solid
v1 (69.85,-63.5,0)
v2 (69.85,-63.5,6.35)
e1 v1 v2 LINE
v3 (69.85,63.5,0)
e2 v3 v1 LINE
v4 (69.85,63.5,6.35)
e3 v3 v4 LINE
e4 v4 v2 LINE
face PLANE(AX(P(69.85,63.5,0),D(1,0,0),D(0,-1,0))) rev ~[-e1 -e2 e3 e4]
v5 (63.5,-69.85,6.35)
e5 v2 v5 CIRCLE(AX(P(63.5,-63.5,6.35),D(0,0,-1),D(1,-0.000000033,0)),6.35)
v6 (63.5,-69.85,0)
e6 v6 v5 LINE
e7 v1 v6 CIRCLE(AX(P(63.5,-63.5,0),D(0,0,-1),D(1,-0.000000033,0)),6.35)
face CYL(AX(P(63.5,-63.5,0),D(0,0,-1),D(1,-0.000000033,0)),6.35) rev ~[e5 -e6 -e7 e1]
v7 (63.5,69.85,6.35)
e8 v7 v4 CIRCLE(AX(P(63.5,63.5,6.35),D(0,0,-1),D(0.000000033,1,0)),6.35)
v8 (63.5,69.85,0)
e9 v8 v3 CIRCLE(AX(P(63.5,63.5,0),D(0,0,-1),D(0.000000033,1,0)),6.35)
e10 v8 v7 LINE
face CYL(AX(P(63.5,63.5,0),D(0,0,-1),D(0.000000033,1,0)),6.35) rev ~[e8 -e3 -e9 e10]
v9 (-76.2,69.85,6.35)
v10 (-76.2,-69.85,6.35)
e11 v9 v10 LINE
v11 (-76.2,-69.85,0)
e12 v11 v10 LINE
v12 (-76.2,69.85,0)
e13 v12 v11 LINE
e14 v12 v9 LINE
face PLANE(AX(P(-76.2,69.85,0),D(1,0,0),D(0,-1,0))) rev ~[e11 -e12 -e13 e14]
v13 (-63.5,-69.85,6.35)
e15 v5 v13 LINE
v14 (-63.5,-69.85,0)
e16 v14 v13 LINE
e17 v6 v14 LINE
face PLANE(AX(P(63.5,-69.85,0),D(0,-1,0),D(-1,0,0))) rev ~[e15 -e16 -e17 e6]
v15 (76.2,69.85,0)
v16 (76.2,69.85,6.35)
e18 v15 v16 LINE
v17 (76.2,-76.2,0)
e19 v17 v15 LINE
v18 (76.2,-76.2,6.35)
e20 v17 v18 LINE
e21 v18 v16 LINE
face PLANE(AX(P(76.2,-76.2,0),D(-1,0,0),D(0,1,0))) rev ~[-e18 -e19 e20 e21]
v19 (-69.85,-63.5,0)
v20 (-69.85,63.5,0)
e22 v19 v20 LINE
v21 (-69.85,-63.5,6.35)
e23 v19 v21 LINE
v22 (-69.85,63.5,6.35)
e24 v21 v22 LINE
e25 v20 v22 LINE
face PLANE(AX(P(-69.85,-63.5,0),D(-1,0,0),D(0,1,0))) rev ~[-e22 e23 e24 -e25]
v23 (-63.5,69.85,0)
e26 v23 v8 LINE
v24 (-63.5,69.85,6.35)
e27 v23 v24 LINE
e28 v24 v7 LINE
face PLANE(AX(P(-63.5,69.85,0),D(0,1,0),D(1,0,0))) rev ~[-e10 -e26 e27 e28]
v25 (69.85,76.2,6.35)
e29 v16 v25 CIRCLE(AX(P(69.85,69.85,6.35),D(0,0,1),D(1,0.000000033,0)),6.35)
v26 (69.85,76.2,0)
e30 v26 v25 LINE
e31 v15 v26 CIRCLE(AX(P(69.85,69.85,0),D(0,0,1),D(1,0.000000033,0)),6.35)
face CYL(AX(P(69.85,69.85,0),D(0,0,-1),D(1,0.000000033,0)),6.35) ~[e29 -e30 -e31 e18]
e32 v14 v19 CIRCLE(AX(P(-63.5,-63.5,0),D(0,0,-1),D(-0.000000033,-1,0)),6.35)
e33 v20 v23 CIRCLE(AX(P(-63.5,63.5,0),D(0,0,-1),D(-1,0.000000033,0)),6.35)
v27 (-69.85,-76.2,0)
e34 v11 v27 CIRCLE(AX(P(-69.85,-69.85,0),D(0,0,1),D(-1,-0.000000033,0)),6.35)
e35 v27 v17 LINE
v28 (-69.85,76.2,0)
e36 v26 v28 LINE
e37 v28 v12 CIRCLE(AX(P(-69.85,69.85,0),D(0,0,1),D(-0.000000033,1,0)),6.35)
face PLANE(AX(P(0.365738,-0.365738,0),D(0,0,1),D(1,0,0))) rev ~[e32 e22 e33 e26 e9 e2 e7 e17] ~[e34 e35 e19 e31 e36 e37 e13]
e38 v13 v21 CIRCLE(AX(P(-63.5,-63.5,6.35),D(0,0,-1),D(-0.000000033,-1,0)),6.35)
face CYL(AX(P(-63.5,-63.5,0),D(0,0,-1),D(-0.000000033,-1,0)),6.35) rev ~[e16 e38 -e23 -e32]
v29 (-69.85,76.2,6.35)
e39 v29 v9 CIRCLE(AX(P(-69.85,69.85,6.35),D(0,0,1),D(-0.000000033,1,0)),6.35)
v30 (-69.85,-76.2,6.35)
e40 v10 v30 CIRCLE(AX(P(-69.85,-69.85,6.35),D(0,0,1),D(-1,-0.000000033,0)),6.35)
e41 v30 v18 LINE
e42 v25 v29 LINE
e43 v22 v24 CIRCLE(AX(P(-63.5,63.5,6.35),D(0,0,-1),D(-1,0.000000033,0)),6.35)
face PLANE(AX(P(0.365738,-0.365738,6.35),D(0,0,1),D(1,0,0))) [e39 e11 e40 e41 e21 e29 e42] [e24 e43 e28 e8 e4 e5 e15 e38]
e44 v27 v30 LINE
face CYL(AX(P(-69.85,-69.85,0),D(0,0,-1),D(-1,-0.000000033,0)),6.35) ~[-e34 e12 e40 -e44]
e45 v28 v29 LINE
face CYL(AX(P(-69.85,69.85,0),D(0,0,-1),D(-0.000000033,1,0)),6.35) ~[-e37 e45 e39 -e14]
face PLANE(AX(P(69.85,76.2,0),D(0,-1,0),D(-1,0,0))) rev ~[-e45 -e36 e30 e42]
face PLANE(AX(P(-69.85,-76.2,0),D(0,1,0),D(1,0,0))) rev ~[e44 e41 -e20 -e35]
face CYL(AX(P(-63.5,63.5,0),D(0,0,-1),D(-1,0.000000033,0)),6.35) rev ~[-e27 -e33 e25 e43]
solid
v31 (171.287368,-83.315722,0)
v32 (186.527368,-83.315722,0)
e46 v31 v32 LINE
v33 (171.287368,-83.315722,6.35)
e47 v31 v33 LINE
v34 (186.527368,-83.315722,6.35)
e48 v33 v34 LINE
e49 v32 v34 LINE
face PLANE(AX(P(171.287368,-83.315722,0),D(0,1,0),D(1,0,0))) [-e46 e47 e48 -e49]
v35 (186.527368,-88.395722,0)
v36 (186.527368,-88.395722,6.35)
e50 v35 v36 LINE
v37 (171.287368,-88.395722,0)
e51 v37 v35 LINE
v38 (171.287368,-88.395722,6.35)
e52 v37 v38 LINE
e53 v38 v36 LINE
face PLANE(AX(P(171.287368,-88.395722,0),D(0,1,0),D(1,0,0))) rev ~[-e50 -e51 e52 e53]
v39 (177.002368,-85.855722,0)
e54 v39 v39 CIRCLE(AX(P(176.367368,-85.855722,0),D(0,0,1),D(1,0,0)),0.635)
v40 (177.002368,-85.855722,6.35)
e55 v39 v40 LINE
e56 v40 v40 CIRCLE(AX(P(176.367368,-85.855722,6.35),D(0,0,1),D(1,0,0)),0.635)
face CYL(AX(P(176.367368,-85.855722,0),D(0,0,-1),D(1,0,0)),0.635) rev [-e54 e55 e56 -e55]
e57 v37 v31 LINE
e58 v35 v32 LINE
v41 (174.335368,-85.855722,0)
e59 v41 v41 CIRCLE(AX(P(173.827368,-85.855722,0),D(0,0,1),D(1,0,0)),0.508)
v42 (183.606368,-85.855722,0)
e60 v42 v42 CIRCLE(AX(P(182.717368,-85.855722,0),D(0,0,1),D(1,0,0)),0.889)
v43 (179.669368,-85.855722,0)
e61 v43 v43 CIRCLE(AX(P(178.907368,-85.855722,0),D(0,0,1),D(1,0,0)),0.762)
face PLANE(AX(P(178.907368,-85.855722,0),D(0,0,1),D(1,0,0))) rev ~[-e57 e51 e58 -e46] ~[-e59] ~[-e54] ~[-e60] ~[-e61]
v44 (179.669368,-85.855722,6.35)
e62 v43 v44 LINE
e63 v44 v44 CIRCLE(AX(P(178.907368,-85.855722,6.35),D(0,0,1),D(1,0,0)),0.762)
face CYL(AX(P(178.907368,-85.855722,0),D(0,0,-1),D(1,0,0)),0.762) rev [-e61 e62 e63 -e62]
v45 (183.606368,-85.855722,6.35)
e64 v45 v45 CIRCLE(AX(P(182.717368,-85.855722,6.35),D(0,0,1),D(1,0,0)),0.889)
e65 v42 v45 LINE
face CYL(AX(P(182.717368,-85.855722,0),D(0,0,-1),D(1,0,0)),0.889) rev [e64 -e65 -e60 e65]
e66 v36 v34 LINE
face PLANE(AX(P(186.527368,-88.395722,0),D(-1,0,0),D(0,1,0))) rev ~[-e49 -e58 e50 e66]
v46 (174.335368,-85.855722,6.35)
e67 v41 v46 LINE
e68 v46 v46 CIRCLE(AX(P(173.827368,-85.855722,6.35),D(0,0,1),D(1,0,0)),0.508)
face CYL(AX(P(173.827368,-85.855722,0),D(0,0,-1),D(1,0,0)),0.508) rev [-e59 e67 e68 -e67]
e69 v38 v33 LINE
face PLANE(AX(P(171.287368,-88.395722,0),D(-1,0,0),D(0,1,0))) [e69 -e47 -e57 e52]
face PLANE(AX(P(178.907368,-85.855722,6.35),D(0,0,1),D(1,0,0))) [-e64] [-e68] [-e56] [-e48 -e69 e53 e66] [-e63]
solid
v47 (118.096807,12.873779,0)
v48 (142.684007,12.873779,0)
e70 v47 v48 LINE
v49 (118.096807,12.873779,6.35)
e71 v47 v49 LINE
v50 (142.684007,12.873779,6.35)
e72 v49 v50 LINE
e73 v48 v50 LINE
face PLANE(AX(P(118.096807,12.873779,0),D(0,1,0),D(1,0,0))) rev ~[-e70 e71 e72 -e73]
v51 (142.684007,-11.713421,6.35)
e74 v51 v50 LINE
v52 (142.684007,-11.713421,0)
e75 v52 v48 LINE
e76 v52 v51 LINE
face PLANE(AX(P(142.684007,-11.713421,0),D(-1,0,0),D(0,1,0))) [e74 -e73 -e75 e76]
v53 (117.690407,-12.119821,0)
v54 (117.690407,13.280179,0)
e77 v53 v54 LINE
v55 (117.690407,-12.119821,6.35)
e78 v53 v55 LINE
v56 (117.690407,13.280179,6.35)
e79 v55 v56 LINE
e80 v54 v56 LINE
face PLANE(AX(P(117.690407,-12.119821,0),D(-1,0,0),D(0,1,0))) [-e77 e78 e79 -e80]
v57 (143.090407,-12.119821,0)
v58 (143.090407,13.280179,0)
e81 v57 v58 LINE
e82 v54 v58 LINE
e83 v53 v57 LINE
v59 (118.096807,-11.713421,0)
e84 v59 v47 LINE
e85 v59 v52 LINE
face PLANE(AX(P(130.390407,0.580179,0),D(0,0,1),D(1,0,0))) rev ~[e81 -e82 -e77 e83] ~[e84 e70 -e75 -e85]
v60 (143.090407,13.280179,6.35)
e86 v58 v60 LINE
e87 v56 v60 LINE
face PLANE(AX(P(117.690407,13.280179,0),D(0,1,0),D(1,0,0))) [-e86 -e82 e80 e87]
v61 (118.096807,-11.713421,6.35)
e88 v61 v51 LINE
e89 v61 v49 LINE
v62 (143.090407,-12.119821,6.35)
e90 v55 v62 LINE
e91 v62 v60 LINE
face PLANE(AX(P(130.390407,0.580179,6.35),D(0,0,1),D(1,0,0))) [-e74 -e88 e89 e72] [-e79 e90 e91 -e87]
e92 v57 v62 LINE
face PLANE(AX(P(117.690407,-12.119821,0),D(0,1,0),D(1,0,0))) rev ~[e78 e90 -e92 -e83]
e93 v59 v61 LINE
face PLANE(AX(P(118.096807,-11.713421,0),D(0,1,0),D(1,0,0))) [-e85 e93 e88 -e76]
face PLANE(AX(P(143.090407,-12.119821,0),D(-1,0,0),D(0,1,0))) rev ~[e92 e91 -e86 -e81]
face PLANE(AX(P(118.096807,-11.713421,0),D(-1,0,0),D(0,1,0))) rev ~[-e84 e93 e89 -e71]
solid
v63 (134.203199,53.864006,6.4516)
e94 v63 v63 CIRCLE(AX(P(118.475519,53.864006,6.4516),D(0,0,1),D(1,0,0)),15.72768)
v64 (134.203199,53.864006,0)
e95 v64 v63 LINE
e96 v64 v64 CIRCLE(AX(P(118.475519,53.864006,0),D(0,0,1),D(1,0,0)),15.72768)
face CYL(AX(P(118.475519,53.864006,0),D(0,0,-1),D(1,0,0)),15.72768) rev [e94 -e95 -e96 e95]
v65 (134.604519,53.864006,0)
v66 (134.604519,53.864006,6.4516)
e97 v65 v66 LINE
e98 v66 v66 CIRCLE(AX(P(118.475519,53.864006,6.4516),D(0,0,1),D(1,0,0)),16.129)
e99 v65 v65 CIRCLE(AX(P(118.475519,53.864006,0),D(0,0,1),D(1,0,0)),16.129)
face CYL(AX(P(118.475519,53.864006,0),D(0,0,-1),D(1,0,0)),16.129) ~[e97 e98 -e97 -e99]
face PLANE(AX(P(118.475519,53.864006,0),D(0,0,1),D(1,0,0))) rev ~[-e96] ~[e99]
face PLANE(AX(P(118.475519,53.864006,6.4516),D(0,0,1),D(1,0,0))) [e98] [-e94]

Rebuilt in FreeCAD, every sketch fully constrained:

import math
import FreeCAD as App
import Part
import Sketcher
from FreeCAD import Vector
Q = App.Units.Quantity

doc = App.newDocument("Part")
body = doc.addObject("PartDesign::Body", "Body")

sketch1 = doc.addObject("Sketcher::SketchObject", "Sketch")
body.addObject(sketch1)
sketch1.AttachmentSupport = (doc.XY_Plane, [""])
sketch1.MapMode = "FlatFace"
sketch1.addGeometry([
    Part.LineSegment(Vector(70, 76, 0), Vector(-70, 76, 0)),
    Part.ArcOfCircle(Part.Circle(Vector(-70, 70, 0), Vector(0, 0, 1), 6), math.radians(90), math.radians(180)),
    Part.LineSegment(Vector(-76, 70, 0), Vector(-76, -70, 0)),
    Part.ArcOfCircle(Part.Circle(Vector(-70, -70, 0), Vector(0, 0, 1), 6), math.radians(-180), math.radians(-90)),
    Part.LineSegment(Vector(-70, -76, 0), Vector(76, -76, 0)),
    Part.LineSegment(Vector(76, -76, 0), Vector(76, 70, 0)),
    Part.ArcOfCircle(Part.Circle(Vector(70, 70, 0), Vector(0, 0, 1), 6), math.radians(0), math.radians(90)),
    Part.LineSegment(Vector(-70, -64, 0), Vector(-70, 64, 0)),
    Part.ArcOfCircle(Part.Circle(Vector(-63, 63, 0), Vector(0, 0, 1), 6), math.radians(90), math.radians(180)),
    Part.LineSegment(Vector(-64, 70, 0), Vector(64, 70, 0)),
    Part.ArcOfCircle(Part.Circle(Vector(63, 63, 0), Vector(0, 0, 1), 6), math.radians(0), math.radians(90)),
    Part.LineSegment(Vector(70, 64, 0), Vector(70, -64, 0)),
    Part.ArcOfCircle(Part.Circle(Vector(63, -63, 0), Vector(0, 0, 1), 6), math.radians(-90), math.radians(0)),
    Part.LineSegment(Vector(64, -70, 0), Vector(-64, -70, 0)),
    Part.ArcOfCircle(Part.Circle(Vector(-63, -63, 0), Vector(0, 0, 1), 6), math.radians(-180), math.radians(-90)),
], False)
sketch1.addConstraint([
    Sketcher.Constraint("Tangent", 0, 2, 1, 1),
    Sketcher.Constraint("Tangent", 1, 2, 2, 1),
    Sketcher.Constraint("Tangent", 2, 2, 3, 1),
    Sketcher.Constraint("Tangent", 3, 2, 4, 1),
    Sketcher.Constraint("Coincident", 4, 2, 5, 1),
    Sketcher.Constraint("Tangent", 5, 2, 6, 1),
    Sketcher.Constraint("Tangent", 6, 2, 0, 1),
    Sketcher.Constraint("Tangent", 7, 2, 8, 2),
    Sketcher.Constraint("Tangent", 8, 1, 9, 1),
    Sketcher.Constraint("Tangent", 9, 2, 10, 2),
    Sketcher.Constraint("Tangent", 10, 1, 11, 1),
    Sketcher.Constraint("Tangent", 11, 2, 12, 2),
    Sketcher.Constraint("Tangent", 12, 1, 13, 1),
    Sketcher.Constraint("Tangent", 13, 2, 14, 2),
    Sketcher.Constraint("Tangent", 14, 1, 7, 1),
    Sketcher.Constraint("Horizontal", 0),
    Sketcher.Constraint("Vertical", 2),
    Sketcher.Constraint("Horizontal", 4),
    Sketcher.Constraint("Vertical", 5),
    Sketcher.Constraint("Vertical", 7),
    Sketcher.Constraint("Horizontal", 9),
    Sketcher.Constraint("Vertical", 11),
    Sketcher.Constraint("Horizontal", 13),
    Sketcher.Constraint("Equal", 1, 3),
    Sketcher.Constraint("Equal", 3, 6),
    Sketcher.Constraint("Equal", 6, 8),
    Sketcher.Constraint("Equal", 8, 10),
    Sketcher.Constraint("Equal", 10, 12),
    Sketcher.Constraint("Equal", 12, 14),
    Sketcher.Constraint("Symmetric", 3, 3, 6, 3, -1, 1),
    Sketcher.Constraint("Symmetric", 8, 3, 12, 3, -1, 1),
    Sketcher.Constraint("Horizontal", 5, 2, 8, 1),
    Sketcher.Constraint("Vertical", 3, 2, 7, 2),
    Sketcher.Constraint("Equal", 0, 2),
    Sketcher.Constraint("DistanceX", 9, 1, 9, 2, Q("5 in")),
    Sketcher.Constraint("Radius", 1, Q("0.25 in")),
])
pad1 = doc.addObject("PartDesign::Pad", "Pad")
body.addObject(pad1)
pad1.Profile = sketch1
pad1.Length = Q("0.25 in")
body2 = doc.addObject("PartDesign::Body", "Body001")

sketch2 = doc.addObject("Sketcher::SketchObject", "Sketch001")
body2.addObject(sketch2)
sketch2.AttachmentSupport = (doc.getObject("XY_Plane001"), [""])
sketch2.MapMode = "FlatFace"
sketch2.addGeometry([
    Part.LineSegment(Vector(118, 13, 0), Vector(118, -12, 0)),
    Part.LineSegment(Vector(118, -12, 0), Vector(143, -12, 0)),
    Part.LineSegment(Vector(143, -12, 0), Vector(143, 13, 0)),
    Part.LineSegment(Vector(143, 13, 0), Vector(118, 13, 0)),
    Part.LineSegment(Vector(143, -12, 0), Vector(118, -12, 0)),
    Part.LineSegment(Vector(118, -12, 0), Vector(118, 13, 0)),
    Part.LineSegment(Vector(118, 13, 0), Vector(143, 13, 0)),
    Part.LineSegment(Vector(143, 13, 0), Vector(143, -12, 0)),
], False)
sketch2.addConstraint([
    Sketcher.Constraint("Coincident", 0, 2, 1, 1),
    Sketcher.Constraint("Coincident", 1, 2, 2, 1),
    Sketcher.Constraint("Coincident", 2, 2, 3, 1),
    Sketcher.Constraint("Coincident", 3, 2, 0, 1),
    Sketcher.Constraint("Coincident", 4, 2, 5, 1),
    Sketcher.Constraint("Coincident", 5, 2, 6, 1),
    Sketcher.Constraint("Coincident", 6, 2, 7, 1),
    Sketcher.Constraint("Coincident", 7, 2, 4, 1),
    Sketcher.Constraint("Vertical", 0),
    Sketcher.Constraint("Horizontal", 1),
    Sketcher.Constraint("Vertical", 2),
    Sketcher.Constraint("Horizontal", 3),
    Sketcher.Constraint("Horizontal", 4),
    Sketcher.Constraint("Vertical", 5),
    Sketcher.Constraint("Horizontal", 6),
    Sketcher.Constraint("Vertical", 7),
    Sketcher.Constraint("Equal", 3, 0),
    Sketcher.Constraint("Equal", 6, 5),
    Sketcher.Constraint("DistanceX", 1, 1, 1, 2, Q("1 in")),
    Sketcher.Constraint("DistanceX", 4, 2, 4, 1, Q("0.968 in")),
    Sketcher.Constraint("DistanceX", 0, 2, 4, 2, Q("0.016 in")),
    Sketcher.Constraint("DistanceY", 0, 2, 4, 2, Q("0.016 in")),
    Sketcher.Constraint("DistanceY", 0, 2, -1, 1, Q("12.119821 mm")),
    Sketcher.Constraint("DistanceX", -1, 1, 0, 2, Q("117.690407 mm")),
])
pad2 = doc.addObject("PartDesign::Pad", "Pad001")
body2.addObject(pad2)
pad2.Profile = sketch2
pad2.Length = Q("0.25 in")
body3 = doc.addObject("PartDesign::Body", "Body002")

sketch3 = doc.addObject("Sketcher::SketchObject", "Sketch002")
body3.addObject(sketch3)
sketch3.AttachmentSupport = (doc.getObject("XY_Plane002"), [""])
sketch3.MapMode = "FlatFace"
sketch3.addGeometry([
    Part.Circle(Vector(118, 54, 0), Vector(0, 0, 1), 16),
    Part.Circle(Vector(118, 54, 0), Vector(0, 0, 1), 16),
], False)
sketch3.addConstraint([
    Sketcher.Constraint("Coincident", 1, 3, 0, 3),
    Sketcher.Constraint("Diameter", 0, Q("1.27 in")),
    Sketcher.Constraint("Diameter", 1, Q("1.2384 in")),
    Sketcher.Constraint("DistanceX", -1, 1, 0, 3, Q("118.475519 mm")),
    Sketcher.Constraint("DistanceY", -1, 1, 0, 3, Q("53.864006 mm")),
])
pad3 = doc.addObject("PartDesign::Pad", "Pad002")
body3.addObject(pad3)
pad3.Profile = sketch3
pad3.Length = Q("0.254 in")
body4 = doc.addObject("PartDesign::Body", "Body003")

sketch4 = doc.addObject("Sketcher::SketchObject", "Sketch003")
body4.addObject(sketch4)
sketch4.AttachmentSupport = (doc.getObject("XY_Plane003"), [""])
sketch4.MapMode = "FlatFace"
sketch4.addGeometry([
    Part.LineSegment(Vector(171.3, -83.3, 0), Vector(171.3, -88.4, 0)),
    Part.LineSegment(Vector(171.3, -88.4, 0), Vector(186.5, -88.4, 0)),
    Part.LineSegment(Vector(186.5, -88.4, 0), Vector(186.5, -83.3, 0)),
    Part.LineSegment(Vector(186.5, -83.3, 0), Vector(171.3, -83.3, 0)),
    Part.Circle(Vector(173.8, -85.9, 0), Vector(0, 0, 1), 0.5),
    Part.Circle(Vector(176.4, -85.9, 0), Vector(0, 0, 1), 0.6),
    Part.Circle(Vector(178.9, -85.9, 0), Vector(0, 0, 1), 0.8),
    Part.Circle(Vector(182.7, -85.9, 0), Vector(0, 0, 1), 0.9),
], False)
sketch4.addConstraint([
    Sketcher.Constraint("Coincident", 0, 2, 1, 1),
    Sketcher.Constraint("Coincident", 1, 2, 2, 1),
    Sketcher.Constraint("Coincident", 2, 2, 3, 1),
    Sketcher.Constraint("Coincident", 3, 2, 0, 1),
    Sketcher.Constraint("Vertical", 0),
    Sketcher.Constraint("Horizontal", 1),
    Sketcher.Constraint("Vertical", 2),
    Sketcher.Constraint("Horizontal", 3),
    Sketcher.Constraint("Horizontal", 4, 3, 5, 3),
    Sketcher.Constraint("Horizontal", 5, 3, 6, 3),
    Sketcher.Constraint("Horizontal", 6, 3, 7, 3),
    Sketcher.Constraint("Diameter", 4, Q("0.04 in")),
    Sketcher.Constraint("Diameter", 5, Q("0.05 in")),
    Sketcher.Constraint("Diameter", 6, Q("0.06 in")),
    Sketcher.Constraint("Diameter", 7, Q("0.07 in")),
    Sketcher.Constraint("DistanceX", 1, 1, 1, 2, Q("0.6 in")),
    Sketcher.Constraint("DistanceY", 0, 2, 0, 1, Q("0.2 in")),
    Sketcher.Constraint("DistanceX", 4, 3, 5, 3, Q("0.1 in")),
    Sketcher.Constraint("DistanceX", 5, 3, 6, 3, Q("0.1 in")),
    Sketcher.Constraint("DistanceX", 0, 2, 4, 3, Q("0.1 in")),
    Sketcher.Constraint("DistanceY", 0, 2, 4, 3, Q("0.1 in")),
    Sketcher.Constraint("DistanceX", 6, 3, 7, 3, Q("0.15 in")),
    Sketcher.Constraint("DistanceX", -1, 1, 4, 3, Q("173.827368 mm")),
    Sketcher.Constraint("DistanceY", 4, 3, -1, 1, Q("85.855722 mm")),
])
pad4 = doc.addObject("PartDesign::Pad", "Pad003")
body4.addObject(pad4)
pad4.Profile = sketch4
pad4.Length = Q("0.25 in")

doc.recompute()
